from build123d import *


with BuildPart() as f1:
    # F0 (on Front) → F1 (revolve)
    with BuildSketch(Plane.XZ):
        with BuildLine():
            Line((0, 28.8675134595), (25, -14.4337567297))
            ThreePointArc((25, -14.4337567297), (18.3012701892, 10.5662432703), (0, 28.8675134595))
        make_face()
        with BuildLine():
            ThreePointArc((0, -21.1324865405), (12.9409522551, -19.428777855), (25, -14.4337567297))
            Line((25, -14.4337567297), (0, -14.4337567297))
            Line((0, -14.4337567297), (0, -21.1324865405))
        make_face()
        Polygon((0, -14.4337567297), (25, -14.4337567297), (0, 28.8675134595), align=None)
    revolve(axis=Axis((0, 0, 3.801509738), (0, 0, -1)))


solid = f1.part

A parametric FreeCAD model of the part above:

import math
import FreeCAD as App
import Part
import Sketcher

V = App.Vector
Q = App.Units.Quantity

doc = App.newDocument("Part")
body = doc.addObject("PartDesign::Body", "Body")

sketch1 = body.newObject("Sketcher::SketchObject", "Sketch")
sketch1.AttachmentSupport = (doc.getObject("XZ_Plane"), [""])
sketch1.MapMode = "FlatFace"
sketch1.addGeometry([
    Part.ArcOfCircle(Part.Circle(V(-25, -14.433757, 0), V(0, 0, 1), 50), math.radians(0), math.radians(60)),
    Part.LineSegment(V(0, 28.867513, 0), V(0, -21.132487, 0)),
    Part.ArcOfCircle(Part.Circle(V(0, 28.867513, 0), V(0, 0, 1), 50), math.radians(-90), math.radians(-60)),
], False)
sketch1.addConstraint([
    Sketcher.Constraint("Coincident", 0, 2, 1, 1),
    Sketcher.Constraint("Coincident", 1, 2, 2, 1),
    Sketcher.Constraint("Coincident", 2, 2, 0, 1),
    Sketcher.Constraint("Vertical", 1),
    Sketcher.Constraint("Coincident", 0, 2, 2, 3),
    Sketcher.Constraint("Equal", 0, 2),
    Sketcher.Constraint("PointOnObject", 2, 3, -2),
    Sketcher.Constraint("Horizontal", 0, 3, 2, 2),
    Sketcher.Constraint("Radius", 0, Q("50 mm")),
    Sketcher.Constraint("DistanceY", 0, 3, -1, 1, Q("14.433757 mm")),
])
revolution = body.newObject("PartDesign::Revolution", "Revolution")
revolution.Profile = sketch1
revolution.ReferenceAxis = (sketch1, ["V_Axis"])
revolution.Angle = 360

doc.recompute()
